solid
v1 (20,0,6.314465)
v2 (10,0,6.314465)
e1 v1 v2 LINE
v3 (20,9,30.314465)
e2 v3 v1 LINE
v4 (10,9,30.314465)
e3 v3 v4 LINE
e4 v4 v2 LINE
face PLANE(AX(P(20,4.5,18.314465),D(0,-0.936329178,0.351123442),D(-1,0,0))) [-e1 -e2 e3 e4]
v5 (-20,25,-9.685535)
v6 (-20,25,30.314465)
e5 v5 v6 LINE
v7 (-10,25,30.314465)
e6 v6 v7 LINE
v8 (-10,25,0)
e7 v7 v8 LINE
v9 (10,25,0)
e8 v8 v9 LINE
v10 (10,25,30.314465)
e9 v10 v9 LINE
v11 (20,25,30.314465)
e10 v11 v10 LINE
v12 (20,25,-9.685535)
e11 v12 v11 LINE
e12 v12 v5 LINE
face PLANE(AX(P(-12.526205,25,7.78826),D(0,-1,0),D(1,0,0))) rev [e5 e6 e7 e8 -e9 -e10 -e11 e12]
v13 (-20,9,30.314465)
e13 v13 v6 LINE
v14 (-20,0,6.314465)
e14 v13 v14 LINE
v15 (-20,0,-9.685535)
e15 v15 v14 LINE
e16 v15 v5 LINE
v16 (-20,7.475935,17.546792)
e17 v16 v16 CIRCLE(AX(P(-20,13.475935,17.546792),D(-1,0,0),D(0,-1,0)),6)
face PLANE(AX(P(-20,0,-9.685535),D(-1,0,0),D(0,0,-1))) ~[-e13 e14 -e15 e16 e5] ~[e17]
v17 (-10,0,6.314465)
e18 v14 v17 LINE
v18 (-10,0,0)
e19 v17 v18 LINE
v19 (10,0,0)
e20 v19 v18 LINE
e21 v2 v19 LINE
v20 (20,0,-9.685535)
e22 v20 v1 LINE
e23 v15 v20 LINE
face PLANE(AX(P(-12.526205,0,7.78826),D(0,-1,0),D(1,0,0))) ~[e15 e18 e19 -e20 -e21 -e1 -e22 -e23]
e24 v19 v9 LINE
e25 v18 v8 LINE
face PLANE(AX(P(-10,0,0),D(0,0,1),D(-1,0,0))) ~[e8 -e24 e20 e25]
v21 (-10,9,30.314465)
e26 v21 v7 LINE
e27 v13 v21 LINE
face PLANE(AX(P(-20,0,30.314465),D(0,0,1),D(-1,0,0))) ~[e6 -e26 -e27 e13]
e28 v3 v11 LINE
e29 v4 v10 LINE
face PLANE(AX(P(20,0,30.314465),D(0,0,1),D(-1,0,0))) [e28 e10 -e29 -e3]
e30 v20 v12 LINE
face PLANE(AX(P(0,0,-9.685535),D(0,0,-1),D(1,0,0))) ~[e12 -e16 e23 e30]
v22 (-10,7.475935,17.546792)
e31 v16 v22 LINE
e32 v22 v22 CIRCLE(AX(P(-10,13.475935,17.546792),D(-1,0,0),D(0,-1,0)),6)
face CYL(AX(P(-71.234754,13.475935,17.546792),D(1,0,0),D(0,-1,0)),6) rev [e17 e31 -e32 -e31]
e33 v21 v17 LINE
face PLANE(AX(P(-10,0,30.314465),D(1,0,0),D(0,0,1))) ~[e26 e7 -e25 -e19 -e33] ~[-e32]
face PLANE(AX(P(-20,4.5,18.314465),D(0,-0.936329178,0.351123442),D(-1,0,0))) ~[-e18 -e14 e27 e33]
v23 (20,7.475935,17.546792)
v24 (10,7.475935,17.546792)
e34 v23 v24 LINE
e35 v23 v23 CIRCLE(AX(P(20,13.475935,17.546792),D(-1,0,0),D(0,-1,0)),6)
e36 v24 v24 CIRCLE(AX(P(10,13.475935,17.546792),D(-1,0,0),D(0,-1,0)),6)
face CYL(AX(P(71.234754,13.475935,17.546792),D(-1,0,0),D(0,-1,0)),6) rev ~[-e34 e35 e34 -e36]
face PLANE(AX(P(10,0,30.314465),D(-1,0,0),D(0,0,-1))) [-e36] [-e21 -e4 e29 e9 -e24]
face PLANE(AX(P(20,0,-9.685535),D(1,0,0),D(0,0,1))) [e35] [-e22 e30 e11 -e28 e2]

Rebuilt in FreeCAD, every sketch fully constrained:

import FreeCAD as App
import Part
import Sketcher
Q = App.Units.Quantity


def edges_at(feature, points):
    """Names of the edges that pass closest to the given points."""
    edges = feature.Shape.Edges
    near = lambda p: min(range(len(edges)), key=lambda i: edges[i].distToShape(Part.Vertex(*p))[0])
    return sorted({f"Edge{near(p) + 1}" for p in points})


def add_polygon(sketch, points):
    """Adds a closed chain of lines whose ends are joined by coincident constraints."""
    first, n = sketch.GeometryCount, len(points)
    for a, b in zip(points, points[1:] + points[:1]):
        sketch.addGeometry(Part.LineSegment(App.Vector(*a, 0), App.Vector(*b, 0)), False)
    for i in range(n):
        sketch.addConstraint(Sketcher.Constraint("Coincident", first + i, 2, first + (i + 1) % n, 1))

doc = App.newDocument("Part")
body = doc.addObject("PartDesign::Body", "Body")

# Sketch on XZ plane
sketch1 = body.newObject("Sketcher::SketchObject", "Sketch")
sketch1.AttachmentSupport = (doc.getObject("XZ_Plane"), [""])
sketch1.MapMode = "FlatFace"
add_polygon(sketch1, [(10, 30.314465), (10, 0), (0, 0), (0, -9.685535), (20, -9.685535), (20, 30.314465)])  # lines 0-5
sketch1.addConstraint([
    Sketcher.Constraint("Vertical", 0),
    Sketcher.Constraint("Horizontal", 1),
    Sketcher.Constraint("Vertical", 2),
    Sketcher.Constraint("Horizontal", 3),
    Sketcher.Constraint("Vertical", 4),
    Sketcher.Constraint("Horizontal", 5),
    Sketcher.Constraint("Coincident", 1, 2, -1, 1),
    Sketcher.Constraint("Equal", 1, 5),
    Sketcher.Constraint("DistanceX", 1, 2, 1, 1, Q("10 mm")),
    Sketcher.Constraint("DistanceY", 4, 1, 4, 2, Q("40 mm")),
    Sketcher.Constraint("DistanceY", 0, 2, 0, 1, Q("30.314465 mm")),
])
pad1 = body.newObject("PartDesign::Pad", "Pad")
pad1.Profile = sketch1
pad1.Length = 25
pad1.Reversed = True

# Sketch on YZ plane
sketch2 = body.newObject("Sketcher::SketchObject", "Sketch001")
sketch2.AttachmentSupport = (doc.getObject("YZ_Plane"), [""])
sketch2.MapMode = "FlatFace"
sketch2.AttachmentOffset = App.Placement(App.Vector(0, 0, 20), App.Rotation())
sketch2.addGeometry(Part.Circle(App.Vector(13.475935, 17.546792, 0), App.Vector(0, 0, 1), 6), False)
sketch2.addConstraint([
    Sketcher.Constraint("Diameter", 0, Q("12 mm")),
    Sketcher.Constraint("DistanceY", -1, 1, 0, 3, Q("17.546792 mm")),
    Sketcher.Constraint("DistanceX", -1, 1, 0, 3, Q("13.475935 mm")),
])
doc.recompute()
hole = body.newObject("PartDesign::Hole", "Hole")
hole.Profile = sketch2
hole.ThreadType = "None"
hole.Diameter = 12
hole.DepthType = "ThroughAll"
doc.recompute()

chamfer = body.newObject("PartDesign::Chamfer", "Chamfer")
chamfer.Base = (hole, edges_at(hole, [(15, 0, 30.314)]))
chamfer.ChamferType = "Two distances"
chamfer.Size = 9
chamfer.Size2 = 24
body2 = doc.addObject("PartDesign::Body", "Body001")
doc.recompute()

body2.BaseFeature = body
doc.recompute()

mirroring = doc.addObject("Part::Mirroring", "Mirroring")
mirroring.Source = body
mirroring.Base = App.Vector(0, 0, 0)
mirroring.Normal = App.Vector(1, 0, 0)
body3 = doc.addObject("PartDesign::Body", "Body002")
body3.BaseFeature = mirroring
boolean = body2.newObject("PartDesign::Boolean", "Boolean")
boolean.Type = "Fuse"
boolean.addObjects([body3])
doc.recompute()
mirroring.Visibility = False

doc.recompute()
